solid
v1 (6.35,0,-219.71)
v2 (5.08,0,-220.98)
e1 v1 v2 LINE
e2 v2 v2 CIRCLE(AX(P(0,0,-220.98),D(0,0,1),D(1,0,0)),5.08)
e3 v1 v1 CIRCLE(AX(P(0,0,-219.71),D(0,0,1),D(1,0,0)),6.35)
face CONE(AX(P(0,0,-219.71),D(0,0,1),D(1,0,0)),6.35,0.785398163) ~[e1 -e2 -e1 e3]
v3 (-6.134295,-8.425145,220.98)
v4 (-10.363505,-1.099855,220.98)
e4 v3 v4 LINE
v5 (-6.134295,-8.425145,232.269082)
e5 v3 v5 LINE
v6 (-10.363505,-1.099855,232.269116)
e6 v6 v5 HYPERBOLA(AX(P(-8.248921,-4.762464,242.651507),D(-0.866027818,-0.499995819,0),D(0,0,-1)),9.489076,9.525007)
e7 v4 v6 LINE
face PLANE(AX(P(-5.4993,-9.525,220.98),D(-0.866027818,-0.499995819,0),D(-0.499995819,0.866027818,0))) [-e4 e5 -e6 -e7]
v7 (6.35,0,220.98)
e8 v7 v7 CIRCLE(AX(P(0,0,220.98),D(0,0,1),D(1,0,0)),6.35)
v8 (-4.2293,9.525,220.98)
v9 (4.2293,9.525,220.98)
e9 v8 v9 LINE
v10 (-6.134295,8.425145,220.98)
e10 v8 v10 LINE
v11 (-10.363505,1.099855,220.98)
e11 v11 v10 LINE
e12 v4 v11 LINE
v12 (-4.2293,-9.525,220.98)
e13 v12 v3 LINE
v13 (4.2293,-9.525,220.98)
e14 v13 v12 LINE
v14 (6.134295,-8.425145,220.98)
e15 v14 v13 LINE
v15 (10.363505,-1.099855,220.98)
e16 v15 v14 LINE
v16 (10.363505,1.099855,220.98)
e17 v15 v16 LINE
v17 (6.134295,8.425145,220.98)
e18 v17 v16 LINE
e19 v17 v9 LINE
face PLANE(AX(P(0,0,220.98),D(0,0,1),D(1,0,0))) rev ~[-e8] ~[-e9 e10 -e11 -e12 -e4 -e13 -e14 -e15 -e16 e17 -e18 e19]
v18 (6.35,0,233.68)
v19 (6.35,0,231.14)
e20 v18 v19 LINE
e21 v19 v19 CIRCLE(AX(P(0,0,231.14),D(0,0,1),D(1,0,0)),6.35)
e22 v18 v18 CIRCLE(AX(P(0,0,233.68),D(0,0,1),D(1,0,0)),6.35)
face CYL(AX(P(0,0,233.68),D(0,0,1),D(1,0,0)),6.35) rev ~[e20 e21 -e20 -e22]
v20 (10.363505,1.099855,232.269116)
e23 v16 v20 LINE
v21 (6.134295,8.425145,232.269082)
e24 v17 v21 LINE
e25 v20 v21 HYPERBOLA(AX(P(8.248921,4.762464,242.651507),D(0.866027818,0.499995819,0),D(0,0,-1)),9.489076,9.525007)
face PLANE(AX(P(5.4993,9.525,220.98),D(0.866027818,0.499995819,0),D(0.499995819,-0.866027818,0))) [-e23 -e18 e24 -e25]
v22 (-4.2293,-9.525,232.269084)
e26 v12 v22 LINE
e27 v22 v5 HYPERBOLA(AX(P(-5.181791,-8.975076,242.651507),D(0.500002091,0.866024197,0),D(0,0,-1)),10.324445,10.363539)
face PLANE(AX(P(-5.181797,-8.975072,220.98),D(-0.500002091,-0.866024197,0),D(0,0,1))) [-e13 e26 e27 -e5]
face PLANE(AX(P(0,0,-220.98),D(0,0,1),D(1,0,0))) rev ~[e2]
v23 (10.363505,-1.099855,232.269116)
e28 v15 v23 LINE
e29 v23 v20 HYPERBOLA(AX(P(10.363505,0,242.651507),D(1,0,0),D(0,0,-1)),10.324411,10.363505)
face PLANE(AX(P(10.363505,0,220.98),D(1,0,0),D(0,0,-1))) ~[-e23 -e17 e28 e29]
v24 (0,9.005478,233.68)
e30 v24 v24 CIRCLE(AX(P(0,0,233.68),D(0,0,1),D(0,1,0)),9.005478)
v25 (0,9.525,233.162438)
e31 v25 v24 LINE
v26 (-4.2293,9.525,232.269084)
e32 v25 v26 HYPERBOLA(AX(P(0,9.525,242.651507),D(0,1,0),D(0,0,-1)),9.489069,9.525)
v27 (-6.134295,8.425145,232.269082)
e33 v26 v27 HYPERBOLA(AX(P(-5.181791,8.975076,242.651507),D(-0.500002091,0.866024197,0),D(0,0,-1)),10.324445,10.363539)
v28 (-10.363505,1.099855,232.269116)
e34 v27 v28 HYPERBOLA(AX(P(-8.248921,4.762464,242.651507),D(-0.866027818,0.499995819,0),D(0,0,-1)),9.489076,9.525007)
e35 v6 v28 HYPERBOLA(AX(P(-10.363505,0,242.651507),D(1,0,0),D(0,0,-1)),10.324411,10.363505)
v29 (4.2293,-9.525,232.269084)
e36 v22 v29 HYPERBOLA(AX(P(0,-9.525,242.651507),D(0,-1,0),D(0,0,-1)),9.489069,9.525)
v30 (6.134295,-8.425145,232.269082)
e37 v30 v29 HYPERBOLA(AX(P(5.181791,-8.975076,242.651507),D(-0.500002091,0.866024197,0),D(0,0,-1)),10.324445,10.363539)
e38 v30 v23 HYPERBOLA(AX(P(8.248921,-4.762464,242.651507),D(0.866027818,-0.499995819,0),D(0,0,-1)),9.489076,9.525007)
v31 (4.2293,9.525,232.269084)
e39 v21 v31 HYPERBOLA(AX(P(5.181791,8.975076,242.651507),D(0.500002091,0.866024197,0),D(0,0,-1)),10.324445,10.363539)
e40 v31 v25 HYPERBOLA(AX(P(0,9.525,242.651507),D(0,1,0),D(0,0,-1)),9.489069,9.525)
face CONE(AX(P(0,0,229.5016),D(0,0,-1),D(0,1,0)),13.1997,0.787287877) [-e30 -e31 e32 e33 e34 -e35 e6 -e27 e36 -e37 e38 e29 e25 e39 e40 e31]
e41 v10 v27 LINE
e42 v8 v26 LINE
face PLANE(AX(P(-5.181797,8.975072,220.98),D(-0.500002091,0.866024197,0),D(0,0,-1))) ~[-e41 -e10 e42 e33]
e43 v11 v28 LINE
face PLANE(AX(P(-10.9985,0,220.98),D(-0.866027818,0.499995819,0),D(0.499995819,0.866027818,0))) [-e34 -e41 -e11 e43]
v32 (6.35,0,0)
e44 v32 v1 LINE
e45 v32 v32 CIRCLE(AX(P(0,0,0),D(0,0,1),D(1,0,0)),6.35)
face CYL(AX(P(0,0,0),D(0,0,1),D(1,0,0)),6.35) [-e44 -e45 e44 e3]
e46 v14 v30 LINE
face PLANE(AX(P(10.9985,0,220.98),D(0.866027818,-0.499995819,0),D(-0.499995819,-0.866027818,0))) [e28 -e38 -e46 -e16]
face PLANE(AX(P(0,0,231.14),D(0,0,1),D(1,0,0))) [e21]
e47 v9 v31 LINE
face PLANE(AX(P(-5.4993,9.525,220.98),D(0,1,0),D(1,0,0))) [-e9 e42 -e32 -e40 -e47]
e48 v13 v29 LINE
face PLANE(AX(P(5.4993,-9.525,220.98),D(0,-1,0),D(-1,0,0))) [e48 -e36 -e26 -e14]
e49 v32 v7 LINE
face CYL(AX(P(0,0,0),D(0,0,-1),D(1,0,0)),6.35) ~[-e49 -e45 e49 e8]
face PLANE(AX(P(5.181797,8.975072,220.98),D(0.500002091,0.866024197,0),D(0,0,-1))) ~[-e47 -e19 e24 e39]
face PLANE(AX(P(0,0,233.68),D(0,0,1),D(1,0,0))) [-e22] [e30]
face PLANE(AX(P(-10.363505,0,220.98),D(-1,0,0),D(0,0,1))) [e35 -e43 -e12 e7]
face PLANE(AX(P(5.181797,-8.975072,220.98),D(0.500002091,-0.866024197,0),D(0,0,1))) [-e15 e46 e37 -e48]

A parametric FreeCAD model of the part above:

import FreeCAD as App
import Part
import Sketcher
from FreeCAD import Vector
Q = App.Units.Quantity


def edges_at(feature, points):
    """Names of the edges that pass closest to the given points."""
    edges = feature.Shape.Edges
    near = lambda p: min(range(len(edges)), key=lambda i: edges[i].distToShape(Part.Vertex(*p))[0])
    return sorted({f"Edge{near(p) + 1}" for p in points})


def add_polygon(sketch, points):
    """Adds a closed chain of lines whose ends are joined by coincident constraints."""
    first, n = sketch.GeometryCount, len(points)
    for a, b in zip(points, points[1:] + points[:1]):
        sketch.addGeometry(Part.LineSegment(App.Vector(*a, 0), App.Vector(*b, 0)), False)
    for i in range(n):
        sketch.addConstraint(Sketcher.Constraint("Coincident", first + i, 2, first + (i + 1) % n, 1))

doc = App.newDocument("Part")
params = doc.addObject("Spreadsheet::Sheet", "Params")
for row, (alias, value) in enumerate([
    ("sketch1_diameter", "0.5 in"),
    ("pad1_length", "17.4 in"),
    ("chamfer_size", "0.05 in"),
    ("pad2_length", "0.5 in"),
    ("sketch3_diameter", "0.5 in"),
    ("pocket1_length", "0.1 in"),
    ("groove_angle", "360 deg"),
    ("chamfer2_size", "0.05 in"),
], start=1):
    params.set(f"A{row}", alias)
    params.set(f"B{row}", "=" + value)
    params.setAlias(f"B{row}", alias)

body = doc.addObject("PartDesign::Body", "Body")

# Sketch on XY plane
sketch1 = doc.addObject("Sketcher::SketchObject", "Sketch")
body.addObject(sketch1)
sketch1.AttachmentSupport = (doc.XY_Plane, [""])
sketch1.MapMode = "FlatFace"
sketch1.addGeometry(Part.Circle(Vector(0, 0, 0), Vector(0, 0, 1), 6), False)
sketch1.addConstraint(Sketcher.Constraint("Coincident", 0, 3, -1, 1))
sketch1.addConstraint(Sketcher.Constraint("Diameter", 0, Q("0.5 in")))
sketch1.setExpression("Constraints[1]", "Params.sketch1_diameter")
pad1 = doc.addObject("PartDesign::Pad", "Pad")
body.addObject(pad1)
pad1.Profile = sketch1
pad1.setExpression("Length", "Params.pad1_length")
pad1.Midplane = True
doc.recompute()

chamfer = doc.addObject("PartDesign::Chamfer", "Chamfer")
body.addObject(chamfer)
chamfer.Base = (pad1, edges_at(pad1, [(-6.35, 0, -220.98)]))
chamfer.setExpression("Size", "Params.chamfer_size")

# Sketch on XY plane
sketch2 = doc.addObject("Sketcher::SketchObject", "Sketch001")
body.addObject(sketch2)
sketch2.AttachmentSupport = (doc.XY_Plane, [""])
sketch2.MapMode = "FlatFace"
sketch2.AttachmentOffset = App.Placement(Vector(0, 0, 8.7 * 25.4), App.Rotation())
add_polygon(sketch2, [(5, -10), (11, 0), (5, 10), (-5, 10), (-11, 0), (-5, -10)])  # lines 0-5
sketch2.addConstraint(Sketcher.Constraint("Horizontal", 2))
sketch2.addConstraint(Sketcher.Constraint("Horizontal", 5))
sketch2.addConstraint(Sketcher.Constraint("Symmetric", 0, 2, 3, 2, -1, 1))
sketch2.addConstraint(Sketcher.Constraint("Symmetric", 1, 2, 4, 2, -1, 1))
sketch2.addConstraint(Sketcher.Constraint("PointOnObject", 0, 2, -1))
sketch2.addConstraint(Sketcher.Constraint("Parallel", 0, 3))
sketch2.addConstraint(Sketcher.Constraint("Vertical", 2, 2, 4, 2))
sketch2.addConstraint(Sketcher.Constraint("DistanceY", 4, 2, 2, 2, Q("0.75 in")))
sketch2.addConstraint(Sketcher.Constraint("Angle", 0, Q("60.0003 deg")))
sketch2.addConstraint(Sketcher.Constraint("DistanceX", -1, 1, 0, 2, Q("0.433 in")))
pad2 = doc.addObject("PartDesign::Pad", "Pad001")
body.addObject(pad2)
pad2.Profile = sketch2
pad2.setExpression("Length", "Params.pad2_length")

# Sketch on XY plane
sketch3 = doc.addObject("Sketcher::SketchObject", "Sketch002")
body.addObject(sketch3)
sketch3.AttachmentSupport = (doc.XY_Plane, [""])
sketch3.MapMode = "FlatFace"
sketch3.AttachmentOffset = App.Placement(Vector(0, 0, 9.2 * 25.4), App.Rotation())
sketch3.addGeometry(Part.Circle(Vector(0, 0, 0), Vector(0, 0, 1), 6), False)
sketch3.addConstraint(Sketcher.Constraint("Coincident", 0, 3, -1, 1))
sketch3.addConstraint(Sketcher.Constraint("Diameter", 0, Q("0.5 in")))
sketch3.setExpression("Constraints[1]", "Params.sketch3_diameter")
pocket1 = doc.addObject("PartDesign::Pocket", "Pocket")
body.addObject(pocket1)
pocket1.Profile = sketch3
pocket1.setExpression("Length", "Params.pocket1_length")

# Sketch on YZ plane
sketch4 = doc.addObject("Sketcher::SketchObject", "Sketch003")
body.addObject(sketch4)
sketch4.AttachmentSupport = (doc.YZ_Plane, [""])
sketch4.MapMode = "FlatFace"
add_polygon(sketch4, [(7.9, 234.8), (13.2, 229.5), (10.6, 234.8)])  # lines 0-2
sketch4.addConstraint(Sketcher.Constraint("Horizontal", 2))
sketch4.addConstraint(Sketcher.Constraint("DistanceX", -1, 1, 1, 2, Q("0.419 in")))
sketch4.addConstraint(Sketcher.Constraint("DistanceX", 2, 2, 2, 1, 2.7446))
sketch4.addConstraint(Sketcher.Constraint("DistanceY", -1, 1, 0, 2, Q("9.0355 in")))
sketch4.addConstraint(Sketcher.Constraint("Distance", 0, 7.4837))
sketch4.addConstraint(Sketcher.Constraint("Distance", 1, 5.8683))
groove = doc.addObject("PartDesign::Groove", "Groove")
body.addObject(groove)
groove.Profile = sketch4
groove.ReferenceAxis = (sketch4, ["V_Axis"])
groove.setExpression("Angle", "Params.groove_angle")
doc.recompute()

chamfer2 = doc.addObject("PartDesign::Chamfer", "Chamfer001")
body.addObject(chamfer2)
chamfer2.Base = (groove, edges_at(groove, [
    (5.499, 9.525, 226.337),
    (10.998, 0, 226.337),
    (5.499, -9.525, 226.337),
    (-5.499, -9.525, 226.337),
    (-10.998, 0, 226.337),
    (-5.499, 9.525, 226.337),
]))
chamfer2.setExpression("Size", "Params.chamfer2_size")

doc.recompute()
